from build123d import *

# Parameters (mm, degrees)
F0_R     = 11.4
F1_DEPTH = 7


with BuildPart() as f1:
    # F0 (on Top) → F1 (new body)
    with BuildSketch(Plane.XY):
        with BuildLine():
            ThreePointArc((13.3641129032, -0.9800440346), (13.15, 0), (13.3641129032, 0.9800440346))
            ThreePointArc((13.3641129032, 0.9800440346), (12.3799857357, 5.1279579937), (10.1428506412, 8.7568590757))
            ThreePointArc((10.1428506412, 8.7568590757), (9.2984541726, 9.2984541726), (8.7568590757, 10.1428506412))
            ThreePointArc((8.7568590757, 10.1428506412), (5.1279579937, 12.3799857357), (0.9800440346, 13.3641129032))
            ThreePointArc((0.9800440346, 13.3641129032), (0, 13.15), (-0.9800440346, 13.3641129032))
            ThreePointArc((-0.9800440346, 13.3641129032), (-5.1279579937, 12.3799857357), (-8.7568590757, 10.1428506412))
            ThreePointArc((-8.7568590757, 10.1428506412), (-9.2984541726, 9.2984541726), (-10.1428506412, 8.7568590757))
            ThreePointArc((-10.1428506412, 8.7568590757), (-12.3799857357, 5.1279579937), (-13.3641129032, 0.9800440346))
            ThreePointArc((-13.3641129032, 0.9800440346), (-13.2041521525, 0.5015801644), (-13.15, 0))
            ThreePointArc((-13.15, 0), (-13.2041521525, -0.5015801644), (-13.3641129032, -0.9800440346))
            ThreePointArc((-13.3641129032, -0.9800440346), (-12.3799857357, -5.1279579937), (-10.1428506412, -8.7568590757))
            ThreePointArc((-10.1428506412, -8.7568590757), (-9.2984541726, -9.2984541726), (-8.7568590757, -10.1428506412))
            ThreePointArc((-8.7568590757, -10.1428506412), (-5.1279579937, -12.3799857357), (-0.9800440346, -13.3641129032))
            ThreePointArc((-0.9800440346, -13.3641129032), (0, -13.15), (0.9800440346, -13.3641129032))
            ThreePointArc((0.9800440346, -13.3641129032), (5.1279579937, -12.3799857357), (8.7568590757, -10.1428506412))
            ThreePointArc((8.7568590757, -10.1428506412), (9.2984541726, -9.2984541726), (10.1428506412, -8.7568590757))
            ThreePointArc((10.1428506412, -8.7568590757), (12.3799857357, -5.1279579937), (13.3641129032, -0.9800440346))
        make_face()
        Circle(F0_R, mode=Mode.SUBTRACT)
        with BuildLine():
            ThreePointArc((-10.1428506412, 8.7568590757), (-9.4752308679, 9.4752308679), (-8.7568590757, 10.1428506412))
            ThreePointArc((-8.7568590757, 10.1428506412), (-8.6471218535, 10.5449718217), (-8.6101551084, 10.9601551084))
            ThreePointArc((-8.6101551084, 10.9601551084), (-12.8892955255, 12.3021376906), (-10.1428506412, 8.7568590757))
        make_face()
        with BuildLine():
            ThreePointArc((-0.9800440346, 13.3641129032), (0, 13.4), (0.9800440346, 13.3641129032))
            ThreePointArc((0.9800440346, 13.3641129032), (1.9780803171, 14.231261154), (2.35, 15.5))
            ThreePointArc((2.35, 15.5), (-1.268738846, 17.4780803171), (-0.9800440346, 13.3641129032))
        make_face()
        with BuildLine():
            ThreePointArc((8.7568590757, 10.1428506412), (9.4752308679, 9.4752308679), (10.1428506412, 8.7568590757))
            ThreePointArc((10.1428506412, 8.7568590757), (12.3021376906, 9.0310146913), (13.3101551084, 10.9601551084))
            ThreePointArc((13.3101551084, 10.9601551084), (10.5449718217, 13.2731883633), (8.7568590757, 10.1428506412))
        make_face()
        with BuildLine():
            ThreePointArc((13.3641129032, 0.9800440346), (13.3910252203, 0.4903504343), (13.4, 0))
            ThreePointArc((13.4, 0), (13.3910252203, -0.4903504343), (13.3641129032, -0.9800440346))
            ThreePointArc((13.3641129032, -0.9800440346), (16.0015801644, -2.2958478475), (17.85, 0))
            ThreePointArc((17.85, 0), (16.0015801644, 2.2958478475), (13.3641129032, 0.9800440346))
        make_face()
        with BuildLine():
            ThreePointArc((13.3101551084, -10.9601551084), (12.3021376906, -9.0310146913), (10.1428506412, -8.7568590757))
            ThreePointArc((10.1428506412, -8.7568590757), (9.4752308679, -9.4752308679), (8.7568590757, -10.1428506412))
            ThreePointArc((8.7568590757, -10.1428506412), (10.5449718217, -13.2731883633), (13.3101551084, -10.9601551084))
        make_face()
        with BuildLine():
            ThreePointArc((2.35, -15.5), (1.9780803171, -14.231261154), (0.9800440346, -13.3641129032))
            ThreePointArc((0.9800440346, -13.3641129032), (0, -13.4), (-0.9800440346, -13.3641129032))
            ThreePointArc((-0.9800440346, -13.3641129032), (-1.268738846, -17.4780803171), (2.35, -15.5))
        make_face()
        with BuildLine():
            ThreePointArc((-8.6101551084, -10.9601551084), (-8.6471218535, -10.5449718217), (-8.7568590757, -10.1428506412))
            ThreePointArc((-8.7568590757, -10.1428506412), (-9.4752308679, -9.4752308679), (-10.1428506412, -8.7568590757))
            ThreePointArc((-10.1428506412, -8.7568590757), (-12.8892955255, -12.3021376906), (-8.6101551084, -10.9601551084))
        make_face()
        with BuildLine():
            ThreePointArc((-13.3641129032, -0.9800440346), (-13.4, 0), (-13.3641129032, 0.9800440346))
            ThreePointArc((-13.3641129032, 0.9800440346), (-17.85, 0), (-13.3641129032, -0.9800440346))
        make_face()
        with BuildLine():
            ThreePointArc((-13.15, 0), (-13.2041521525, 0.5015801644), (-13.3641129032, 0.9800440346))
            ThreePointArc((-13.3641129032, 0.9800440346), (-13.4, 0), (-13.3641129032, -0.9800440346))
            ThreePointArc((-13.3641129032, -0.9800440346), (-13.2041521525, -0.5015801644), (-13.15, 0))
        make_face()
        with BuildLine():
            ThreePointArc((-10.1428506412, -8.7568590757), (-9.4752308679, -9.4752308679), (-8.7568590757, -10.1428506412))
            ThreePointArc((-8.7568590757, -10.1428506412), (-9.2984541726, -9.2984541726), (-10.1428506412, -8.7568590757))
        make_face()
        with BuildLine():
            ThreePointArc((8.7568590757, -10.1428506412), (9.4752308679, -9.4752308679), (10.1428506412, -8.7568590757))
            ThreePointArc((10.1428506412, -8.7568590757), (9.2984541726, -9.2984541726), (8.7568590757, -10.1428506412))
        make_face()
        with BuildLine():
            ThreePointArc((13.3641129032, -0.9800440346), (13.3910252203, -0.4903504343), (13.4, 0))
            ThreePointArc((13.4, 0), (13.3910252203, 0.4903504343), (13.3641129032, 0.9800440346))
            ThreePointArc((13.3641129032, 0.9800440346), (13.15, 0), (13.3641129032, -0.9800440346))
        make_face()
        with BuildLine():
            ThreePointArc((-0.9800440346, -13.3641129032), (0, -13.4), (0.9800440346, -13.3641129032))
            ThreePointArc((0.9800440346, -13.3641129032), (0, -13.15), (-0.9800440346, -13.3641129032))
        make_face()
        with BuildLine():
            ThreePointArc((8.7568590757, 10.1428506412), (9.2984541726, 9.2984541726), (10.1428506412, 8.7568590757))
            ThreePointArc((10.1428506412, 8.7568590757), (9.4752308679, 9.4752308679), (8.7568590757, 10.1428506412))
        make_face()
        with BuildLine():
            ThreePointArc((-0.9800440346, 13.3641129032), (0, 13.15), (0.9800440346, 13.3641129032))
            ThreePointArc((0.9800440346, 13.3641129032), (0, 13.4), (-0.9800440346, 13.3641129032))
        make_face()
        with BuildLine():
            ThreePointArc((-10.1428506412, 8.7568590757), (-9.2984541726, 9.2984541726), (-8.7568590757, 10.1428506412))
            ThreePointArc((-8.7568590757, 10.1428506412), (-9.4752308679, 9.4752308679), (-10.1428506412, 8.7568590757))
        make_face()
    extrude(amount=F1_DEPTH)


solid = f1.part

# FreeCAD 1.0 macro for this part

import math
import FreeCAD as App
import Part
import Sketcher
from FreeCAD import Vector
Q = App.Units.Quantity

doc = App.newDocument("Part")
body = doc.addObject("PartDesign::Body", "Body")

# Sketch on XY plane
sketch1 = doc.addObject("Sketcher::SketchObject", "Sketch")
body.addObject(sketch1)
sketch1.AttachmentSupport = (doc.XY_Plane, [""])
sketch1.MapMode = "FlatFace"
sketch1.addGeometry(Part.ArcOfCircle(Part.Circle(Vector(0, 0, 0), Vector(0, 0, 1), 13.4), math.radians(4), math.radians(41)), False)
sketch1.addGeometry(Part.ArcOfCircle(Part.Circle(Vector(11, 11, 0), Vector(0, 0, 1), 2.4), math.radians(-110), math.radians(0)), False)
sketch1.addGeometry(Part.ArcOfCircle(Part.Circle(Vector(11, 11, 0), Vector(0, 0, 1), 2.4), math.radians(0), math.radians(200)), False)
sketch1.addGeometry(Part.ArcOfCircle(Part.Circle(Vector(0, 0, 0), Vector(0, 0, 1), 13.4), math.radians(49), math.radians(86)), False)
sketch1.addGeometry(Part.ArcOfCircle(Part.Circle(Vector(0, 15.5, 0), Vector(0, 0, 1), 2.4), math.radians(-65), math.radians(0)), False)
sketch1.addGeometry(Part.ArcOfCircle(Part.Circle(Vector(0, 15.5, 0), Vector(0, 0, 1), 2.4), math.radians(0), math.radians(245)), False)
sketch1.addGeometry(Part.ArcOfCircle(Part.Circle(Vector(0, 0, 0), Vector(0, 0, 1), 13.4), math.radians(94), math.radians(131)), False)
sketch1.addGeometry(Part.ArcOfCircle(Part.Circle(Vector(-11, 11, 0), Vector(0, 0, 1), 2.4), math.radians(-20), math.radians(0)), False)
sketch1.addGeometry(Part.ArcOfCircle(Part.Circle(Vector(-11, 11, 0), Vector(0, 0, 1), 2.4), math.radians(0), math.radians(290)), False)
sketch1.addGeometry(Part.ArcOfCircle(Part.Circle(Vector(0, 0, 0), Vector(0, 0, 1), 13.4), math.radians(139), math.radians(176)), False)
sketch1.addGeometry(Part.ArcOfCircle(Part.Circle(Vector(-15.5, 0, 0), Vector(0, 0, 1), 2.4), math.radians(25), math.radians(335)), False)
sketch1.addGeometry(Part.ArcOfCircle(Part.Circle(Vector(0, 0, 0), Vector(0, 0, 1), 13.4), math.radians(-176), math.radians(-139)), False)
sketch1.addGeometry(Part.ArcOfCircle(Part.Circle(Vector(-11, -11, 0), Vector(0, 0, 1), 2.4), math.radians(70), math.radians(360)), False)
sketch1.addGeometry(Part.ArcOfCircle(Part.Circle(Vector(-11, -11, 0), Vector(0, 0, 1), 2.4), math.radians(0), math.radians(20)), False)
sketch1.addGeometry(Part.ArcOfCircle(Part.Circle(Vector(0, 0, 0), Vector(0, 0, 1), 13.4), math.radians(-131), math.radians(-94)), False)
sketch1.addGeometry(Part.ArcOfCircle(Part.Circle(Vector(0, -15.5, 0), Vector(0, 0, 1), 2.4), math.radians(115), math.radians(360)), False)
sketch1.addGeometry(Part.ArcOfCircle(Part.Circle(Vector(0, -15.5, 0), Vector(0, 0, 1), 2.4), math.radians(0), math.radians(65)), False)
sketch1.addGeometry(Part.ArcOfCircle(Part.Circle(Vector(0, 0, 0), Vector(0, 0, 1), 13.4), math.radians(-86), math.radians(-49)), False)
sketch1.addGeometry(Part.ArcOfCircle(Part.Circle(Vector(11, -11, 0), Vector(0, 0, 1), 2.4), math.radians(160), math.radians(360)), False)
sketch1.addGeometry(Part.ArcOfCircle(Part.Circle(Vector(11, -11, 0), Vector(0, 0, 1), 2.4), math.radians(0), math.radians(110)), False)
sketch1.addGeometry(Part.ArcOfCircle(Part.Circle(Vector(0, 0, 0), Vector(0, 0, 1), 13.4), math.radians(-41), math.radians(-4)), False)
sketch1.addGeometry(Part.ArcOfCircle(Part.Circle(Vector(15.5, 0, 0), Vector(0, 0, 1), 2.4), math.radians(-155), math.radians(0)), False)
sketch1.addGeometry(Part.ArcOfCircle(Part.Circle(Vector(15.5, 0, 0), Vector(0, 0, 1), 2.4), math.radians(0), math.radians(155)), False)
sketch1.addGeometry(Part.Circle(Vector(0, 0, 0), Vector(0, 0, 1), 11.4), False)
sketch1.addConstraint(Sketcher.Constraint("Coincident", 0, 2, 1, 1))
sketch1.addConstraint(Sketcher.Constraint("Tangent", 1, 2, 2, 1))
sketch1.addConstraint(Sketcher.Constraint("Coincident", 2, 2, 3, 1))
sketch1.addConstraint(Sketcher.Constraint("Coincident", 3, 2, 4, 1))
sketch1.addConstraint(Sketcher.Constraint("Tangent", 4, 2, 5, 1))
sketch1.addConstraint(Sketcher.Constraint("Coincident", 5, 2, 6, 1))
sketch1.addConstraint(Sketcher.Constraint("Coincident", 6, 2, 7, 1))
sketch1.addConstraint(Sketcher.Constraint("Tangent", 7, 2, 8, 1))
sketch1.addConstraint(Sketcher.Constraint("Coincident", 8, 2, 9, 1))
sketch1.addConstraint(Sketcher.Constraint("Coincident", 9, 2, 10, 1))
sketch1.addConstraint(Sketcher.Constraint("Coincident", 10, 2, 11, 1))
sketch1.addConstraint(Sketcher.Constraint("Coincident", 11, 2, 12, 1))
sketch1.addConstraint(Sketcher.Constraint("Tangent", 12, 2, 13, 1))
sketch1.addConstraint(Sketcher.Constraint("Coincident", 13, 2, 14, 1))
sketch1.addConstraint(Sketcher.Constraint("Coincident", 14, 2, 15, 1))
sketch1.addConstraint(Sketcher.Constraint("Tangent", 15, 2, 16, 1))
sketch1.addConstraint(Sketcher.Constraint("Coincident", 16, 2, 17, 1))
sketch1.addConstraint(Sketcher.Constraint("Coincident", 17, 2, 18, 1))
sketch1.addConstraint(Sketcher.Constraint("Tangent", 18, 2, 19, 1))
sketch1.addConstraint(Sketcher.Constraint("Coincident", 19, 2, 20, 1))
sketch1.addConstraint(Sketcher.Constraint("Coincident", 20, 2, 21, 1))
sketch1.addConstraint(Sketcher.Constraint("Tangent", 21, 2, 22, 1))
sketch1.addConstraint(Sketcher.Constraint("Coincident", 22, 2, 0, 1))
sketch1.addConstraint(Sketcher.Constraint("Coincident", 0, 3, -1, 1))
sketch1.addConstraint(Sketcher.Constraint("Coincident", 3, 3, -1, 1))
sketch1.addConstraint(Sketcher.Constraint("Coincident", 6, 3, -1, 1))
sketch1.addConstraint(Sketcher.Constraint("Coincident", 9, 3, -1, 1))
sketch1.addConstraint(Sketcher.Constraint("Coincident", 11, 3, -1, 1))
sketch1.addConstraint(Sketcher.Constraint("Coincident", 14, 3, -1, 1))
sketch1.addConstraint(Sketcher.Constraint("Coincident", 17, 3, -1, 1))
sketch1.addConstraint(Sketcher.Constraint("Coincident", 20, 3, -1, 1))
sketch1.addConstraint(Sketcher.Constraint("Coincident", 23, 3, -1, 1))
sketch1.addConstraint(Sketcher.Constraint("Equal", 1, 2))
sketch1.addConstraint(Sketcher.Constraint("Equal", 0, 3))
sketch1.addConstraint(Sketcher.Constraint("Equal", 2, 4))
sketch1.addConstraint(Sketcher.Constraint("Equal", 4, 5))
sketch1.addConstraint(Sketcher.Constraint("Equal", 3, 6))
sketch1.addConstraint(Sketcher.Constraint("Equal", 5, 7))
sketch1.addConstraint(Sketcher.Constraint("Equal", 7, 8))
sketch1.addConstraint(Sketcher.Constraint("Equal", 6, 9))
sketch1.addConstraint(Sketcher.Constraint("Equal", 8, 10))
sketch1.addConstraint(Sketcher.Constraint("Equal", 9, 11))
sketch1.addConstraint(Sketcher.Constraint("Equal", 10, 12))
sketch1.addConstraint(Sketcher.Constraint("Equal", 12, 13))
sketch1.addConstraint(Sketcher.Constraint("Equal", 11, 14))
sketch1.addConstraint(Sketcher.Constraint("Equal", 13, 15))
sketch1.addConstraint(Sketcher.Constraint("Equal", 15, 16))
sketch1.addConstraint(Sketcher.Constraint("Equal", 14, 17))
sketch1.addConstraint(Sketcher.Constraint("Equal", 16, 18))
sketch1.addConstraint(Sketcher.Constraint("Equal", 18, 19))
sketch1.addConstraint(Sketcher.Constraint("Equal", 17, 20))
sketch1.addConstraint(Sketcher.Constraint("Equal", 19, 21))
sketch1.addConstraint(Sketcher.Constraint("Equal", 21, 22))
sketch1.addConstraint(Sketcher.Constraint("Symmetric", 1, 3, 12, 3, -1, 1))
sketch1.addConstraint(Sketcher.Constraint("Symmetric", 4, 3, 15, 3, -1, 1))
sketch1.addConstraint(Sketcher.Constraint("Symmetric", 7, 3, 18, 3, -1, 1))
sketch1.addConstraint(Sketcher.Constraint("Symmetric", 10, 3, 21, 3, -1, 1))
sketch1.addConstraint(Sketcher.Constraint("Symmetric", 1, 3, 7, 3, -2))
sketch1.addConstraint(Sketcher.Constraint("Symmetric", 4, 2, 15, 2, -1))
sketch1.addConstraint(Sketcher.Constraint("PointOnObject", 10, 3, -1))
sketch1.addConstraint(Sketcher.Constraint("PointOnObject", 21, 2, -1))
sketch1.addConstraint(Sketcher.Constraint("Horizontal", 8, 3, 1, 2))
sketch1.addConstraint(Sketcher.Constraint("Horizontal", 5, 3, 4, 2))
sketch1.addConstraint(Sketcher.Constraint("Horizontal", 1, 2, 7, 2))
sketch1.addConstraint(Sketcher.Constraint("Horizontal", 19, 3, 12, 2))
sketch1.addConstraint(Sketcher.Constraint("Horizontal", 12, 2, 18, 2))
sketch1.addConstraint(Sketcher.Constraint("Diameter", 23, Q("22.8 mm")))
sketch1.addConstraint(Sketcher.Constraint("Radius", 0, Q("13.4 mm")))
sketch1.addConstraint(Sketcher.Constraint("Radius", 1, Q("2.35 mm")))
sketch1.addConstraint(Sketcher.Constraint("DistanceY", -1, 1, 4, 3, Q("15.5 mm")))
sketch1.addConstraint(Sketcher.Constraint("DistanceX", 10, 3, -1, 1, Q("15.5 mm")))
sketch1.addConstraint(Sketcher.Constraint("DistanceX", 12, 2, 16, 2, Q("9.590199 mm")))
sketch1.addConstraint(Sketcher.Constraint("DistanceX", -1, 1, 0, 2, Q("10.142851 mm")))
pad1 = doc.addObject("PartDesign::Pad", "Pad")
body.addObject(pad1)
pad1.Profile = sketch1
pad1.Length = 7

doc.recompute()
